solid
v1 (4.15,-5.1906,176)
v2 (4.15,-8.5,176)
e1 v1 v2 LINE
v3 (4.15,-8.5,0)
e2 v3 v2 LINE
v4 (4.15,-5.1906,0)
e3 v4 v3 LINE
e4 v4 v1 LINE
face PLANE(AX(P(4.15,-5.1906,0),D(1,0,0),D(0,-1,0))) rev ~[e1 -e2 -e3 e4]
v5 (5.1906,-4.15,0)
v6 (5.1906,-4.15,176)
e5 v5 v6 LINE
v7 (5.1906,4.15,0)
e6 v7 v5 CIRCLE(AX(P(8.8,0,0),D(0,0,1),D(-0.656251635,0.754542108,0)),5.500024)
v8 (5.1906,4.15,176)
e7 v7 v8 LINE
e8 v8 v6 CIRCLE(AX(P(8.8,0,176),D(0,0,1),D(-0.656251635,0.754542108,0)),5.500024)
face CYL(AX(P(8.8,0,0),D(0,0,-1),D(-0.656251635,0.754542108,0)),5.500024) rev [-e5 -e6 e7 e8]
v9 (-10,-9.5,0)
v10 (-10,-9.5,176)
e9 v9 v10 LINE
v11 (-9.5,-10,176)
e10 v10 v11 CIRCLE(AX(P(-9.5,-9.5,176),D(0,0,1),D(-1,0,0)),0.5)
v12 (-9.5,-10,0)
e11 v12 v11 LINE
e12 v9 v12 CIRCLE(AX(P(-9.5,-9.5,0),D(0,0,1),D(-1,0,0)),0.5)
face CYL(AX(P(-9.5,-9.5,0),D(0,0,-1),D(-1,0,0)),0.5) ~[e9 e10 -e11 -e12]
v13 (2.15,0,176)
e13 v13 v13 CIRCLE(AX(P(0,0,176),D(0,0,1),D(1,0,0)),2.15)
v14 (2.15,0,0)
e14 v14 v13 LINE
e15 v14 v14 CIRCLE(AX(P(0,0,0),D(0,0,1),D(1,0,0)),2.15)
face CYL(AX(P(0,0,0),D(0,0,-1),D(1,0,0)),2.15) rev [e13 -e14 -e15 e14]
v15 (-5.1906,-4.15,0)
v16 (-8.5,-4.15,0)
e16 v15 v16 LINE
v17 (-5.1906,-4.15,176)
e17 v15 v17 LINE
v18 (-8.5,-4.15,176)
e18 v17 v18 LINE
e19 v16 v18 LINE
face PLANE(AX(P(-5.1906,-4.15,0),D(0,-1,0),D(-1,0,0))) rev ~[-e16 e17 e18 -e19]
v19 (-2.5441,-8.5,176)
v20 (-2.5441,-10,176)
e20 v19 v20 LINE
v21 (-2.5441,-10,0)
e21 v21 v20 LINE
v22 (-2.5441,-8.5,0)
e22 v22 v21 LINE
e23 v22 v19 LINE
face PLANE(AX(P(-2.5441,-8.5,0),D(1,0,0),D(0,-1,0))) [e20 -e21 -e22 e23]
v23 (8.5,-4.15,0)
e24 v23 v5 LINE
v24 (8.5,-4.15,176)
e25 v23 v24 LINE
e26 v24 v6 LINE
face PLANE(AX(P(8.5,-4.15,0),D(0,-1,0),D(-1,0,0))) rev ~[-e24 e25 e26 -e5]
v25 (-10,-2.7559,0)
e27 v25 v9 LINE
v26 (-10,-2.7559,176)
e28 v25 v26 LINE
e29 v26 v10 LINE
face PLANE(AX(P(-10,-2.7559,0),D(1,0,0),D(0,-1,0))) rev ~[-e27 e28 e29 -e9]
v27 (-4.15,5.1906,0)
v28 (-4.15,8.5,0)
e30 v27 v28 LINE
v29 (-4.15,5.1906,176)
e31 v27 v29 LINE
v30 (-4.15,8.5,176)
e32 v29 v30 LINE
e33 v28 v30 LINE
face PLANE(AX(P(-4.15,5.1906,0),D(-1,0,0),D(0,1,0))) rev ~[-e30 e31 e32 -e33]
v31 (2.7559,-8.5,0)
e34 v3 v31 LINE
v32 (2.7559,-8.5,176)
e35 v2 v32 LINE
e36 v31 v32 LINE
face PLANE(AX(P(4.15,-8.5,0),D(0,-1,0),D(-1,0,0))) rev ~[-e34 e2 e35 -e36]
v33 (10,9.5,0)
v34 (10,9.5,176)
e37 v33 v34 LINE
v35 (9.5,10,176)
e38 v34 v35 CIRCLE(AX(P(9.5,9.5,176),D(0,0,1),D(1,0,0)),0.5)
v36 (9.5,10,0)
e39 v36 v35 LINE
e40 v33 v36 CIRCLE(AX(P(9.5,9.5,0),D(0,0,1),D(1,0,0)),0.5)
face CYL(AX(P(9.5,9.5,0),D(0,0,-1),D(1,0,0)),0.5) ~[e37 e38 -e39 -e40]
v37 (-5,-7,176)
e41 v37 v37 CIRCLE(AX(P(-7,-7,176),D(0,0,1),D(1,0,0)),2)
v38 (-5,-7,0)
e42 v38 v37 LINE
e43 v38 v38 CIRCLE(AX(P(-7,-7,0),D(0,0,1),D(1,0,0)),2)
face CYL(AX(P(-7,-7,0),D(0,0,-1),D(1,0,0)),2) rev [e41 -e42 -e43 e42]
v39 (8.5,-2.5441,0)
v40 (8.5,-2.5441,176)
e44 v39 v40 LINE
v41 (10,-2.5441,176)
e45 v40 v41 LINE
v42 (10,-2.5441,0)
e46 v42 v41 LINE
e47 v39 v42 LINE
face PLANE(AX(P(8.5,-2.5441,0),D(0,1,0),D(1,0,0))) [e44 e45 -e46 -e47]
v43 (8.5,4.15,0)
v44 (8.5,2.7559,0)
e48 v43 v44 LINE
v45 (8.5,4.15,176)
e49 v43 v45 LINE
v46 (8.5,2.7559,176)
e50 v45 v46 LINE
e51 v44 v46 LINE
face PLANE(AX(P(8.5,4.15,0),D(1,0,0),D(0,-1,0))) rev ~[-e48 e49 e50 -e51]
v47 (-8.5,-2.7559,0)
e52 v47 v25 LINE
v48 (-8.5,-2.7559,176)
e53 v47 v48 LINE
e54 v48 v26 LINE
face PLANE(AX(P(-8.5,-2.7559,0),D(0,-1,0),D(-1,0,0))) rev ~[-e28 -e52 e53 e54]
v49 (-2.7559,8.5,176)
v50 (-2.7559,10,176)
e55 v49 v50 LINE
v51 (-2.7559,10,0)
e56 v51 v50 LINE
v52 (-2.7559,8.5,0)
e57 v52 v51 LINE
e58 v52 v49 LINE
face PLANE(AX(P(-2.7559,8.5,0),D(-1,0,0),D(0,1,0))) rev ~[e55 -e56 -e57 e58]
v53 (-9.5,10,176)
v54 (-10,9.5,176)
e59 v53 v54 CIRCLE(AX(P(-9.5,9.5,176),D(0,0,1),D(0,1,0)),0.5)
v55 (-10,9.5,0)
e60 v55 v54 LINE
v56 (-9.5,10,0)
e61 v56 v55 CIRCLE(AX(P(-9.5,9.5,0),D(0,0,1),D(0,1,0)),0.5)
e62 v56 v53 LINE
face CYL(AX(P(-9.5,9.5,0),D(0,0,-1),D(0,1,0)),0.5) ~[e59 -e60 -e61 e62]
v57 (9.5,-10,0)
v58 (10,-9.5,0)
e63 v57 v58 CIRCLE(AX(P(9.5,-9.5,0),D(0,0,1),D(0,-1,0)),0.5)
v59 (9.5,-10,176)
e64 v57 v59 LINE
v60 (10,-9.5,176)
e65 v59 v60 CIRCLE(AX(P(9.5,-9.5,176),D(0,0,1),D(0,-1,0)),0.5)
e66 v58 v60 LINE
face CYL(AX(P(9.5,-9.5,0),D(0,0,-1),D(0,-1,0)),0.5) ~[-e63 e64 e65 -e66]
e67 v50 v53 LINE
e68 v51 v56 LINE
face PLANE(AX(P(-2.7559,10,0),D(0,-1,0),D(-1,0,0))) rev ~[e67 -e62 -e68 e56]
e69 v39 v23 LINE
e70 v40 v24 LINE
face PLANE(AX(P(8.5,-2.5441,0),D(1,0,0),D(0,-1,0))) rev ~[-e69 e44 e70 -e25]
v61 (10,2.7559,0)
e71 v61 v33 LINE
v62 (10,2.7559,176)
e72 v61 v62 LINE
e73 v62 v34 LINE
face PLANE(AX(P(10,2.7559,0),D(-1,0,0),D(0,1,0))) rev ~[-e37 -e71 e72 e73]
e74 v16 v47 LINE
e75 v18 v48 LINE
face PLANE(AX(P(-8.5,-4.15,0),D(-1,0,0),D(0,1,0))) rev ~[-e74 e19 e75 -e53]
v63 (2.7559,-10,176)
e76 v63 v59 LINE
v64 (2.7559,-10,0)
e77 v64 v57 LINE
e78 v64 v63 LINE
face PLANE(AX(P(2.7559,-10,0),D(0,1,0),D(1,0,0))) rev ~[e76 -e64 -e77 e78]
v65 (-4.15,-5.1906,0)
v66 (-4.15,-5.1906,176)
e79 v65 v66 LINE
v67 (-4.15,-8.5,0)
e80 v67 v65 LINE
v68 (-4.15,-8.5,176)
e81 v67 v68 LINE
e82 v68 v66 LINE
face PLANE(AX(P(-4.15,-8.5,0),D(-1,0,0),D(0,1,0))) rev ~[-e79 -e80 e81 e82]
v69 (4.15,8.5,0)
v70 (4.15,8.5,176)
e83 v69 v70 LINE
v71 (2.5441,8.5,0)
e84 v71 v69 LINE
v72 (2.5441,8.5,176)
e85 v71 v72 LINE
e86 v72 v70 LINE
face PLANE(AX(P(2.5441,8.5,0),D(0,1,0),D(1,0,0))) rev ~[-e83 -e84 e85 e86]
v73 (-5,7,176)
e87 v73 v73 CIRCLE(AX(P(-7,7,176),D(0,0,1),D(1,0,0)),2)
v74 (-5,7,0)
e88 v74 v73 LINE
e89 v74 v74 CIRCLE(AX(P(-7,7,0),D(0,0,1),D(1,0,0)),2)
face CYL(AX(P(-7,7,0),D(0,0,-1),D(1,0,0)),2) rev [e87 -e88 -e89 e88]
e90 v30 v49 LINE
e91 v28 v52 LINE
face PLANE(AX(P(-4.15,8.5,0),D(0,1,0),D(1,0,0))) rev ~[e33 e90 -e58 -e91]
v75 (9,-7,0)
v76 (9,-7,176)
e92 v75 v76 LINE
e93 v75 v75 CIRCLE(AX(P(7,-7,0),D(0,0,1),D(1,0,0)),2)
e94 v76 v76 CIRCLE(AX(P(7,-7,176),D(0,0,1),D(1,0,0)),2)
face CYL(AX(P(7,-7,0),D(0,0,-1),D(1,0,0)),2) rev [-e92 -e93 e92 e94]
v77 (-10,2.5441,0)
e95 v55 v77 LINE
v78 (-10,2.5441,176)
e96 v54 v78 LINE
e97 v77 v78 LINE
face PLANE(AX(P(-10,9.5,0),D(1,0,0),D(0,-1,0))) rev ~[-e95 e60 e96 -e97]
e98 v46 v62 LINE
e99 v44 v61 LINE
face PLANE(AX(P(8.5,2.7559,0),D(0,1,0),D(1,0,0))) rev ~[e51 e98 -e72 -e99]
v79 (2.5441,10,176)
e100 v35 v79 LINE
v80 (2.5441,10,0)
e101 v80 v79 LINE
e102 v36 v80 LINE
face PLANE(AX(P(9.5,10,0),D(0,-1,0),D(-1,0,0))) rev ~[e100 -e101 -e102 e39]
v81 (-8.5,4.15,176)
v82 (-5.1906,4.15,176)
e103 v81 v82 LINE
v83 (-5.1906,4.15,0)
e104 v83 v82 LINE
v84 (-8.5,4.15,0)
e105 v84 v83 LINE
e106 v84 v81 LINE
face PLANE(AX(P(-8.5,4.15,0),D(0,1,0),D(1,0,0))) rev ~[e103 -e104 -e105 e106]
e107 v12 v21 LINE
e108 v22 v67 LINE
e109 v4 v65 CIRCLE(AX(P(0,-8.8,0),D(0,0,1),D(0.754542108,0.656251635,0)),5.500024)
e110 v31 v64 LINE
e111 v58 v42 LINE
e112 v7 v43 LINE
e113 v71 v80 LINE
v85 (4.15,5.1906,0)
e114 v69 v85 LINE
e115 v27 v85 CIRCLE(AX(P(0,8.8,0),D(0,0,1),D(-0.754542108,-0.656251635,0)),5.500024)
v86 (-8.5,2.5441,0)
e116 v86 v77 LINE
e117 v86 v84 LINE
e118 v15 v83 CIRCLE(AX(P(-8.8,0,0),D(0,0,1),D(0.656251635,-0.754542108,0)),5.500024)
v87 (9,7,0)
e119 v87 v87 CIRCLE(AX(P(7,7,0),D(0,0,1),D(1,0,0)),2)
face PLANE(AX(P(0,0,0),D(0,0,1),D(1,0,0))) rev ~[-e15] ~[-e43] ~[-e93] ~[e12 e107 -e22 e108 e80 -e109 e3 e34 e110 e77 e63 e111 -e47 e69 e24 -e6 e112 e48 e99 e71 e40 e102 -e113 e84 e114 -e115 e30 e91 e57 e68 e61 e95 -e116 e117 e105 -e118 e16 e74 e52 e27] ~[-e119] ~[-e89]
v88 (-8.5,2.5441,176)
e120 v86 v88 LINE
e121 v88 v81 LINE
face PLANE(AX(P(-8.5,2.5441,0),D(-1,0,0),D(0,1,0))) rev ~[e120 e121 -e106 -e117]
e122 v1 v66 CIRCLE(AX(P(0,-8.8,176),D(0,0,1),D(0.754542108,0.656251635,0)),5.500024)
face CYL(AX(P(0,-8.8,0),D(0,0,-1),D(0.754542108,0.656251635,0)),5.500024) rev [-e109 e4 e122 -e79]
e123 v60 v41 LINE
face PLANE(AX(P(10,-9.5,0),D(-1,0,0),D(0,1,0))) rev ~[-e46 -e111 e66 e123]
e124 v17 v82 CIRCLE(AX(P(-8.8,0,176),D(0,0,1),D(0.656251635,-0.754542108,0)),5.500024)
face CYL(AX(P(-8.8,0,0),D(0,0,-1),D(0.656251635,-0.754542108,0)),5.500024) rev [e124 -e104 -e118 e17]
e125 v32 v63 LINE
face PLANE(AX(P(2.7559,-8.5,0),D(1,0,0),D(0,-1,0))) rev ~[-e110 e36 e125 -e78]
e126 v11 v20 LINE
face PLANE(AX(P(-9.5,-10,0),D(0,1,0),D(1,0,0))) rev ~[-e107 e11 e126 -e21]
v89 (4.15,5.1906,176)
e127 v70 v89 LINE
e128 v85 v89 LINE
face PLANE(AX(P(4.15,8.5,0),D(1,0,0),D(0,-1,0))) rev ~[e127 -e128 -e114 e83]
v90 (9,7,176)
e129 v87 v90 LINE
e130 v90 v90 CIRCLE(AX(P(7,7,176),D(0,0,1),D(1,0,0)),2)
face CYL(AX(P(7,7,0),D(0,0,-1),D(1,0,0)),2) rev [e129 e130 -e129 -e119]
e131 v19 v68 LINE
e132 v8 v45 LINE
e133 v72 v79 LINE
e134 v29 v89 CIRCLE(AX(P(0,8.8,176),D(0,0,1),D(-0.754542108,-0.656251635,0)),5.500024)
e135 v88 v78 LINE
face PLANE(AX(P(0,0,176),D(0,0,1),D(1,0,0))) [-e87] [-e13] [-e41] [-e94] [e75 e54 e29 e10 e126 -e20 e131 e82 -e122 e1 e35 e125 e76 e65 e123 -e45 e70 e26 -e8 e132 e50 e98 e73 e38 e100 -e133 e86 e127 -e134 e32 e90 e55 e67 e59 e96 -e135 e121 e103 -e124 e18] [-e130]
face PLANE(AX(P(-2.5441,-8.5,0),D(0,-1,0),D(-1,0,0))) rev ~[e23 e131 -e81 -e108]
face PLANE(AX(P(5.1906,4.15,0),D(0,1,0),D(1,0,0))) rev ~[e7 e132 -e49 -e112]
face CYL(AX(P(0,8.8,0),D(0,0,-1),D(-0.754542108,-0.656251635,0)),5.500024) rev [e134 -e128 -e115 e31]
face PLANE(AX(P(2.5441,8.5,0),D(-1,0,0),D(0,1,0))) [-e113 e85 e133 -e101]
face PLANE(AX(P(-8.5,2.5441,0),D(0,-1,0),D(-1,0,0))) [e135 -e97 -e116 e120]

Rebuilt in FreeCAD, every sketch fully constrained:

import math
import FreeCAD as App
import Part
import Sketcher

doc = App.newDocument("Part")
params = doc.addObject("Spreadsheet::Sheet", "Params")
for row, (alias, value) in enumerate([
    ("sketch1_diameter", "4 mm"),
    ("sketch1_diameter2", "4.3 mm"),
    ("sketch1_radius", "0.5 mm"),
    ("sketch1_radius2", "5.5 mm"),
    ("sketch1_width", "1.5 mm"),
    ("pad1_length", "176 mm"),
], start=1):
    params.set(f"A{row}", alias)
    params.set(f"B{row}", "=" + value)
    params.setAlias(f"B{row}", alias)

body = doc.addObject("PartDesign::Body", "Body")

# Sketch on XY plane
sketch1 = doc.addObject("Sketcher::SketchObject", "Sketch")
body.addObject(sketch1)
sketch1.AttachmentSupport = (doc.XY_Plane, [""])
sketch1.MapMode = "FlatFace"
sketch1.addGeometry([
    Part.LineSegment(App.Vector(-10, -2.8, 0), App.Vector(-10, -9.5, 0)),  # 0
    Part.ArcOfCircle(Part.Circle(App.Vector(-9.5, -9.5, 0), App.Vector(0, 0, 1), 0.5), math.radians(180), math.radians(270)),  # 1
    Part.LineSegment(App.Vector(-9.5, -10, 0), App.Vector(-2.5, -10, 0)),  # 2
    Part.LineSegment(App.Vector(-2.5, -10, 0), App.Vector(-2.5, -8.5, 0)),  # 3
    Part.LineSegment(App.Vector(-2.5, -8.5, 0), App.Vector(-4.2, -8.5, 0)),  # 4
    Part.LineSegment(App.Vector(-4.2, -8.5, 0), App.Vector(-4.2, -5.2, 0)),  # 5
    Part.ArcOfCircle(Part.Circle(App.Vector(0, -8.8, 0), App.Vector(0, 0, 1), 5.5), math.radians(41), math.radians(139)),  # 6
    Part.LineSegment(App.Vector(4.2, -5.2, 0), App.Vector(4.2, -8.5, 0)),  # 7
    Part.LineSegment(App.Vector(4.2, -8.5, 0), App.Vector(2.8, -8.5, 0)),  # 8
    Part.LineSegment(App.Vector(2.8, -8.5, 0), App.Vector(2.8, -10, 0)),  # 9
    Part.LineSegment(App.Vector(2.8, -10, 0), App.Vector(9.5, -10, 0)),  # 10
    Part.ArcOfCircle(Part.Circle(App.Vector(9.5, -9.5, 0), App.Vector(0, 0, 1), 0.5), math.radians(-90), math.radians(0)),  # 11
    Part.LineSegment(App.Vector(10, -9.5, 0), App.Vector(10, -2.5, 0)),  # 12
    Part.LineSegment(App.Vector(10, -2.5, 0), App.Vector(8.5, -2.5, 0)),  # 13
    Part.LineSegment(App.Vector(8.5, -2.5, 0), App.Vector(8.5, -4.2, 0)),  # 14
    Part.LineSegment(App.Vector(8.5, -4.2, 0), App.Vector(5.2, -4.2, 0)),  # 15
    Part.ArcOfCircle(Part.Circle(App.Vector(8.8, 0, 0), App.Vector(0, 0, 1), 5.5), math.radians(131), math.radians(229)),  # 16
    Part.LineSegment(App.Vector(5.2, 4.2, 0), App.Vector(8.5, 4.2, 0)),  # 17
    Part.LineSegment(App.Vector(8.5, 4.2, 0), App.Vector(8.5, 2.8, 0)),  # 18
    Part.LineSegment(App.Vector(8.5, 2.8, 0), App.Vector(10, 2.8, 0)),  # 19
    Part.LineSegment(App.Vector(10, 2.8, 0), App.Vector(10, 9.5, 0)),  # 20
    Part.ArcOfCircle(Part.Circle(App.Vector(9.5, 9.5, 0), App.Vector(0, 0, 1), 0.5), math.radians(0), math.radians(90)),  # 21
    Part.LineSegment(App.Vector(9.5, 10, 0), App.Vector(2.5, 10, 0)),  # 22
    Part.LineSegment(App.Vector(2.5, 10, 0), App.Vector(2.5, 8.5, 0)),  # 23
    Part.LineSegment(App.Vector(2.5, 8.5, 0), App.Vector(4.2, 8.5, 0)),  # 24
    Part.LineSegment(App.Vector(4.2, 8.5, 0), App.Vector(4.2, 5.2, 0)),  # 25
    Part.ArcOfCircle(Part.Circle(App.Vector(0, 8.8, 0), App.Vector(0, 0, 1), 5.5), math.radians(-139), math.radians(-41)),  # 26
    Part.LineSegment(App.Vector(-4.2, 5.2, 0), App.Vector(-4.2, 8.5, 0)),  # 27
    Part.LineSegment(App.Vector(-4.2, 8.5, 0), App.Vector(-2.8, 8.5, 0)),  # 28
    Part.LineSegment(App.Vector(-2.8, 8.5, 0), App.Vector(-2.8, 10, 0)),  # 29
    Part.LineSegment(App.Vector(-2.8, 10, 0), App.Vector(-9.5, 10, 0)),  # 30
    Part.ArcOfCircle(Part.Circle(App.Vector(-9.5, 9.5, 0), App.Vector(0, 0, 1), 0.5), math.radians(90), math.radians(180)),  # 31
    Part.LineSegment(App.Vector(-10, 9.5, 0), App.Vector(-10, 2.5, 0)),  # 32
    Part.LineSegment(App.Vector(-10, 2.5, 0), App.Vector(-8.5, 2.5, 0)),  # 33
    Part.LineSegment(App.Vector(-8.5, 2.5, 0), App.Vector(-8.5, 4.2, 0)),  # 34
    Part.LineSegment(App.Vector(-8.5, 4.2, 0), App.Vector(-5.2, 4.2, 0)),  # 35
    Part.ArcOfCircle(Part.Circle(App.Vector(-8.8, 0, 0), App.Vector(0, 0, 1), 5.5), math.radians(-49), math.radians(49)),  # 36
    Part.LineSegment(App.Vector(-5.2, -4.2, 0), App.Vector(-8.5, -4.2, 0)),  # 37
    Part.LineSegment(App.Vector(-8.5, -4.2, 0), App.Vector(-8.5, -2.8, 0)),  # 38
    Part.LineSegment(App.Vector(-8.5, -2.8, 0), App.Vector(-10, -2.8, 0)),  # 39
    Part.Circle(App.Vector(-7, -7, 0), App.Vector(0, 0, 1), 2),  # 40
    Part.Circle(App.Vector(7, -7, 0), App.Vector(0, 0, 1), 2),  # 41
    Part.Circle(App.Vector(0, 0, 0), App.Vector(0, 0, 1), 2.1),  # 42
    Part.Circle(App.Vector(-7, 7, 0), App.Vector(0, 0, 1), 2),  # 43
    Part.Circle(App.Vector(7, 7, 0), App.Vector(0, 0, 1), 2),  # 44
], False)
sketch1.addConstraint([
    Sketcher.Constraint("Tangent", 0, 2, 1, 1),
    Sketcher.Constraint("Tangent", 1, 2, 2, 1),
    Sketcher.Constraint("Coincident", 2, 2, 3, 1),
    Sketcher.Constraint("Coincident", 3, 2, 4, 1),
    Sketcher.Constraint("Coincident", 4, 2, 5, 1),
    Sketcher.Constraint("Coincident", 5, 2, 6, 2),
    Sketcher.Constraint("Coincident", 6, 1, 7, 1),
    Sketcher.Constraint("Coincident", 7, 2, 8, 1),
    Sketcher.Constraint("Coincident", 8, 2, 9, 1),
    Sketcher.Constraint("Coincident", 9, 2, 10, 1),
    Sketcher.Constraint("Tangent", 10, 2, 11, 1),
    Sketcher.Constraint("Tangent", 11, 2, 12, 1),
    Sketcher.Constraint("Coincident", 12, 2, 13, 1),
    Sketcher.Constraint("Coincident", 13, 2, 14, 1),
    Sketcher.Constraint("Coincident", 14, 2, 15, 1),
    Sketcher.Constraint("Coincident", 15, 2, 16, 2),
    Sketcher.Constraint("Coincident", 16, 1, 17, 1),
    Sketcher.Constraint("Coincident", 17, 2, 18, 1),
    Sketcher.Constraint("Coincident", 18, 2, 19, 1),
    Sketcher.Constraint("Coincident", 19, 2, 20, 1),
    Sketcher.Constraint("Tangent", 20, 2, 21, 1),
    Sketcher.Constraint("Tangent", 21, 2, 22, 1),
    Sketcher.Constraint("Coincident", 22, 2, 23, 1),
    Sketcher.Constraint("Coincident", 23, 2, 24, 1),
    Sketcher.Constraint("Coincident", 24, 2, 25, 1),
    Sketcher.Constraint("Coincident", 25, 2, 26, 2),
    Sketcher.Constraint("Coincident", 26, 1, 27, 1),
    Sketcher.Constraint("Coincident", 27, 2, 28, 1),
    Sketcher.Constraint("Coincident", 28, 2, 29, 1),
    Sketcher.Constraint("Coincident", 29, 2, 30, 1),
    Sketcher.Constraint("Tangent", 30, 2, 31, 1),
    Sketcher.Constraint("Tangent", 31, 2, 32, 1),
    Sketcher.Constraint("Coincident", 32, 2, 33, 1),
    Sketcher.Constraint("Coincident", 33, 2, 34, 1),
    Sketcher.Constraint("Coincident", 34, 2, 35, 1),
    Sketcher.Constraint("Coincident", 35, 2, 36, 2),
    Sketcher.Constraint("Coincident", 36, 1, 37, 1),
    Sketcher.Constraint("Coincident", 37, 2, 38, 1),
    Sketcher.Constraint("Coincident", 38, 2, 39, 1),
    Sketcher.Constraint("Coincident", 39, 2, 0, 1),
    Sketcher.Constraint("Vertical", 0),
    Sketcher.Constraint("Horizontal", 2),
    Sketcher.Constraint("Vertical", 3),
    Sketcher.Constraint("Horizontal", 4),
    Sketcher.Constraint("Vertical", 5),
    Sketcher.Constraint("Vertical", 7),
    Sketcher.Constraint("Horizontal", 8),
    Sketcher.Constraint("Vertical", 9),
    Sketcher.Constraint("Horizontal", 10),
    Sketcher.Constraint("Vertical", 12),
    Sketcher.Constraint("Horizontal", 13),
    Sketcher.Constraint("Vertical", 14),
    Sketcher.Constraint("Horizontal", 15),
    Sketcher.Constraint("Horizontal", 17),
    Sketcher.Constraint("Vertical", 18),
    Sketcher.Constraint("Horizontal", 19),
    Sketcher.Constraint("Vertical", 20),
    Sketcher.Constraint("Horizontal", 22),
    Sketcher.Constraint("Vertical", 23),
    Sketcher.Constraint("Horizontal", 24),
    Sketcher.Constraint("Vertical", 25),
    Sketcher.Constraint("Vertical", 27),
    Sketcher.Constraint("Horizontal", 28),
    Sketcher.Constraint("Vertical", 29),
    Sketcher.Constraint("Horizontal", 30),
    Sketcher.Constraint("Vertical", 32),
    Sketcher.Constraint("Horizontal", 33),
    Sketcher.Constraint("Vertical", 34),
    Sketcher.Constraint("Horizontal", 35),
    Sketcher.Constraint("Horizontal", 37),
    Sketcher.Constraint("Vertical", 38),
    Sketcher.Constraint("Horizontal", 39),
    Sketcher.Constraint("Coincident", 42, 3, -1, 1),
    Sketcher.Constraint("Equal", 1, 11),
    Sketcher.Constraint("Equal", 6, 16),
    Sketcher.Constraint("Equal", 11, 21),
    Sketcher.Constraint("Equal", 16, 26),
    Sketcher.Constraint("Equal", 21, 31),
    Sketcher.Constraint("Equal", 26, 36),
    Sketcher.Constraint("Equal", 40, 41),
    Sketcher.Constraint("Equal", 41, 43),
    Sketcher.Constraint("Equal", 43, 44),
    Sketcher.Constraint("Symmetric", 1, 3, 21, 3, -1, 1),
    Sketcher.Constraint("Symmetric", 6, 3, 26, 3, -1, 1),
    Sketcher.Constraint("Symmetric", 11, 3, 31, 3, -1, 1),
    Sketcher.Constraint("Symmetric", 16, 3, 36, 3, -1, 1),
    Sketcher.Constraint("Symmetric", 41, 3, 43, 3, -1, 1),
    Sketcher.Constraint("Symmetric", 40, 3, 44, 3, -1, 1),
    Sketcher.Constraint("Symmetric", 3, 2, 23, 2, -1, 1),
    Sketcher.Constraint("Symmetric", 7, 2, 27, 2, -1, 1),
    Sketcher.Constraint("Symmetric", 13, 2, 33, 2, -1, 1),
    Sketcher.Constraint("Symmetric", 17, 2, 37, 2, -1, 1),
    Sketcher.Constraint("Symmetric", 1, 3, 11, 3, -2),
    Sketcher.Constraint("Symmetric", 40, 3, 41, 3, -2),
    Sketcher.Constraint("Symmetric", 5, 2, 6, 1, -2),
    Sketcher.Constraint("Symmetric", 24, 2, 27, 2, -2),
    Sketcher.Constraint("Symmetric", 17, 2, 34, 2, -2),
    Sketcher.Constraint("Symmetric", 15, 2, 36, 1, -2),
    Sketcher.Constraint("Equal", 8, 28),
    Sketcher.Constraint("Equal", 30, 0),
    Sketcher.Constraint("Equal", 39, 3),
    Sketcher.Constraint("Equal", 37, 5),
    Sketcher.Constraint("Equal", 22, 12),
    Sketcher.Constraint("Equal", 24, 14),
    Sketcher.Constraint("Equal", 28, 18),
    Sketcher.Constraint("Diameter", 40, 4.0),
    Sketcher.Constraint("Diameter", 42, 4.3),
    Sketcher.Constraint("Radius", 1, 0.5),
    Sketcher.Constraint("Radius", 6, 5.5),
    Sketcher.Constraint("DistanceX", 13, 2, 13, 1, 1.5),
    Sketcher.Constraint("DistanceX", 40, 3, 41, 3, 14.0),
    Sketcher.Constraint("DistanceY", 40, 3, 43, 3, 14.0),
    Sketcher.Constraint("DistanceY", 3, 2, 40, 3, 1.5),
    Sketcher.Constraint("DistanceX", 3, 2, 8, 2, 5.3),
    Sketcher.Constraint("DistanceX", 41, 3, 13, 2, 1.5),
    Sketcher.Constraint("DistanceY", 6, 3, -1, 1, 8.8),
    Sketcher.Constraint("DistanceX", 2, 1, 2, 2, 6.956),
    Sketcher.Constraint("DistanceX", 4, 2, 4, 1, 1.606),
])
sketch1.setExpression("Constraints[105]", "Params.sketch1_diameter")
sketch1.setExpression("Constraints[106]", "Params.sketch1_diameter2")
sketch1.setExpression("Constraints[107]", "Params.sketch1_radius")
sketch1.setExpression("Constraints[108]", "Params.sketch1_radius2")
sketch1.setExpression("Constraints[109]", "Params.sketch1_width")
pad1 = doc.addObject("PartDesign::Pad", "Pad")
body.addObject(pad1)
pad1.Profile = sketch1
pad1.setExpression("Length", "Params.pad1_length")

doc.recompute()
